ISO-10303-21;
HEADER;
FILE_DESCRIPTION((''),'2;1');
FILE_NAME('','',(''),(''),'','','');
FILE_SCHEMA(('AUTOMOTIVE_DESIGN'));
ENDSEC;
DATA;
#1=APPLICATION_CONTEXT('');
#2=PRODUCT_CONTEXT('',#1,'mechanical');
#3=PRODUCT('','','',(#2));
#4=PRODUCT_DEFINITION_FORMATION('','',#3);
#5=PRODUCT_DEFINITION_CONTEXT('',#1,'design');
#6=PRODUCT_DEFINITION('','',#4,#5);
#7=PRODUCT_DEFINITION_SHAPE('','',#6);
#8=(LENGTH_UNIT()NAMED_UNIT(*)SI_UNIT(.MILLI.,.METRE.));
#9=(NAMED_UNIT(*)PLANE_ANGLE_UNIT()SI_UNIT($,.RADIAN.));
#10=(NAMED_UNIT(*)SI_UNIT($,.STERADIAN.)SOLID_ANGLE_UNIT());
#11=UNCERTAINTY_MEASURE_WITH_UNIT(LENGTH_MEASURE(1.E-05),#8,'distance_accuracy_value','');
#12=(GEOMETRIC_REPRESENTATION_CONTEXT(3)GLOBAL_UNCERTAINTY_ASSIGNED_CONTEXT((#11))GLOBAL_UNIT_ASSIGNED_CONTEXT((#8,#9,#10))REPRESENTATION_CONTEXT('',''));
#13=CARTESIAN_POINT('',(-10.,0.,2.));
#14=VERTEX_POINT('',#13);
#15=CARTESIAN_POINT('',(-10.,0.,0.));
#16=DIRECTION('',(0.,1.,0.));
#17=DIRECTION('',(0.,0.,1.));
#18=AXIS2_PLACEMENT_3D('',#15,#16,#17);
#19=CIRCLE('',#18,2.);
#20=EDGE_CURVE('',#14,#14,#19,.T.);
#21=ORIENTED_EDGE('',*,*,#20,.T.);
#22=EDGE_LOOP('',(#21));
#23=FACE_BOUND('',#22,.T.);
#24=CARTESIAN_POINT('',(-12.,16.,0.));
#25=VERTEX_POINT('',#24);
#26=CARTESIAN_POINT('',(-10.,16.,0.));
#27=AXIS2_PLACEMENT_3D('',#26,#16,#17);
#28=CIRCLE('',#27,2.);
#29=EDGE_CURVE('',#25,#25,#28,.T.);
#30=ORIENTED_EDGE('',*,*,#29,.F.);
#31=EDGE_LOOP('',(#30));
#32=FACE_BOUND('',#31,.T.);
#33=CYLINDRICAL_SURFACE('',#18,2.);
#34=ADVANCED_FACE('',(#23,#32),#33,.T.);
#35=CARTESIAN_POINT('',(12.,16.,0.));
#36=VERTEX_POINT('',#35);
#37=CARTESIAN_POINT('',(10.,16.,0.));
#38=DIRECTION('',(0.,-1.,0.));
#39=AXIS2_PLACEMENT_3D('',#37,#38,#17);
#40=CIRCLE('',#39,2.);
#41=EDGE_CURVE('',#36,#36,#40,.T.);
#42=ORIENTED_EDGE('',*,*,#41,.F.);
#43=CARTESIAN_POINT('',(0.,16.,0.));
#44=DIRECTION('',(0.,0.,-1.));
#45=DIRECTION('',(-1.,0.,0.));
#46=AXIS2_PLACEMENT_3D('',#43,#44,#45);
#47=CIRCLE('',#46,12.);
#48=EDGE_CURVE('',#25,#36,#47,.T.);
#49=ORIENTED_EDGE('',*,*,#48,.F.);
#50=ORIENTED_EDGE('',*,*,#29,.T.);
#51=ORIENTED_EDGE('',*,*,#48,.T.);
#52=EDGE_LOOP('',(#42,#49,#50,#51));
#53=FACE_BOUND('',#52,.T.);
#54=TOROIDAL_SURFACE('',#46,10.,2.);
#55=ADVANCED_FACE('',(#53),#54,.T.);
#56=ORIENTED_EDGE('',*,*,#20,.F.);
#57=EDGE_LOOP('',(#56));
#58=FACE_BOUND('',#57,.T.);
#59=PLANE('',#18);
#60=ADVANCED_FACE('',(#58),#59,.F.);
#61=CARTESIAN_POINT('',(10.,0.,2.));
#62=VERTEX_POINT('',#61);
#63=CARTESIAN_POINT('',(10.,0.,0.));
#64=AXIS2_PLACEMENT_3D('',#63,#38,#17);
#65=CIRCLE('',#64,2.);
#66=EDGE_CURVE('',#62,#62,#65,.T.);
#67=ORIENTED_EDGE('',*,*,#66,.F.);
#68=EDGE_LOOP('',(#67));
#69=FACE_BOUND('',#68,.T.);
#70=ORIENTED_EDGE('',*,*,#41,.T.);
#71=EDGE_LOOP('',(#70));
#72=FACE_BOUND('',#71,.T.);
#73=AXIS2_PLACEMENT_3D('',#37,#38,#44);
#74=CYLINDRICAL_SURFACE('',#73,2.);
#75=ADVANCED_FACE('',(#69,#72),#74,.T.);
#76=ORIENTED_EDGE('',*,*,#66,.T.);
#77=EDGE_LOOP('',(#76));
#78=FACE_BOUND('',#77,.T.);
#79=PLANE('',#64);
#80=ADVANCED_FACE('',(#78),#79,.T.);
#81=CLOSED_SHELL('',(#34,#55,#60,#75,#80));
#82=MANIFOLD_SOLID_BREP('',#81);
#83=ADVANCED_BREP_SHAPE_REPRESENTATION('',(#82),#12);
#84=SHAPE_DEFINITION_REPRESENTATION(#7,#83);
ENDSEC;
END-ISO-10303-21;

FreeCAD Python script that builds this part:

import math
import FreeCAD as App
import Part
import Sketcher

doc = App.newDocument("Part")
body = doc.addObject("PartDesign::Body", "Body")

sketch1 = body.newObject("Sketcher::SketchObject", "Sketch")
sketch1.AttachmentSupport = (doc.getObject("XZ_Plane"), [""])
sketch1.MapMode = "FlatFace"
sketch1.addGeometry(Part.Circle(App.Vector(-10, 0, 0), App.Vector(0, 0, 1), 2), False)
sketch1.addConstraint(Sketcher.Constraint("PointOnObject", 0, 3, -1))
sketch1.addConstraint(Sketcher.Constraint("Diameter", 0, 4.0))
sketch1.addConstraint(Sketcher.Constraint("DistanceX", 0, 3, -1, 1, 10.0))

sketch2 = body.newObject("Sketcher::SketchObject", "Sketch001")
sketch2.AttachmentSupport = (doc.getObject("XY_Plane"), [""])
sketch2.MapMode = "FlatFace"
sketch2.addGeometry(Part.LineSegment(App.Vector(-10, 0, 0), App.Vector(-10, 16, 0)), False)
sketch2.addGeometry(Part.ArcOfCircle(Part.Circle(App.Vector(0, 16, 0), App.Vector(0, 0, 1), 10), math.radians(0), math.radians(180)), False)
sketch2.addGeometry(Part.LineSegment(App.Vector(10, 16, 0), App.Vector(10, 0, 0)), False)
sketch2.addConstraint(Sketcher.Constraint("Tangent", 0, 2, 1, 2))
sketch2.addConstraint(Sketcher.Constraint("Tangent", 1, 1, 2, 1))
sketch2.addConstraint(Sketcher.Constraint("Vertical", 0))
sketch2.addConstraint(Sketcher.Constraint("Vertical", 2))
sketch2.addConstraint(Sketcher.Constraint("Symmetric", 0, 1, 2, 2, -1, 1))
sketch2.addConstraint(Sketcher.Constraint("PointOnObject", 0, 1, -1))
sketch2.addConstraint(Sketcher.Constraint("Radius", 1, 10.0))
sketch2.addConstraint(Sketcher.Constraint("DistanceY", 0, 1, 0, 2, 16.0))
doc.recompute()

additivepipe = body.newObject("PartDesign::AdditivePipe", "AdditivePipe")
additivepipe.Profile = sketch1
additivepipe.Spine = (sketch2, ["Edge1", "Edge2", "Edge3"])

doc.recompute()
